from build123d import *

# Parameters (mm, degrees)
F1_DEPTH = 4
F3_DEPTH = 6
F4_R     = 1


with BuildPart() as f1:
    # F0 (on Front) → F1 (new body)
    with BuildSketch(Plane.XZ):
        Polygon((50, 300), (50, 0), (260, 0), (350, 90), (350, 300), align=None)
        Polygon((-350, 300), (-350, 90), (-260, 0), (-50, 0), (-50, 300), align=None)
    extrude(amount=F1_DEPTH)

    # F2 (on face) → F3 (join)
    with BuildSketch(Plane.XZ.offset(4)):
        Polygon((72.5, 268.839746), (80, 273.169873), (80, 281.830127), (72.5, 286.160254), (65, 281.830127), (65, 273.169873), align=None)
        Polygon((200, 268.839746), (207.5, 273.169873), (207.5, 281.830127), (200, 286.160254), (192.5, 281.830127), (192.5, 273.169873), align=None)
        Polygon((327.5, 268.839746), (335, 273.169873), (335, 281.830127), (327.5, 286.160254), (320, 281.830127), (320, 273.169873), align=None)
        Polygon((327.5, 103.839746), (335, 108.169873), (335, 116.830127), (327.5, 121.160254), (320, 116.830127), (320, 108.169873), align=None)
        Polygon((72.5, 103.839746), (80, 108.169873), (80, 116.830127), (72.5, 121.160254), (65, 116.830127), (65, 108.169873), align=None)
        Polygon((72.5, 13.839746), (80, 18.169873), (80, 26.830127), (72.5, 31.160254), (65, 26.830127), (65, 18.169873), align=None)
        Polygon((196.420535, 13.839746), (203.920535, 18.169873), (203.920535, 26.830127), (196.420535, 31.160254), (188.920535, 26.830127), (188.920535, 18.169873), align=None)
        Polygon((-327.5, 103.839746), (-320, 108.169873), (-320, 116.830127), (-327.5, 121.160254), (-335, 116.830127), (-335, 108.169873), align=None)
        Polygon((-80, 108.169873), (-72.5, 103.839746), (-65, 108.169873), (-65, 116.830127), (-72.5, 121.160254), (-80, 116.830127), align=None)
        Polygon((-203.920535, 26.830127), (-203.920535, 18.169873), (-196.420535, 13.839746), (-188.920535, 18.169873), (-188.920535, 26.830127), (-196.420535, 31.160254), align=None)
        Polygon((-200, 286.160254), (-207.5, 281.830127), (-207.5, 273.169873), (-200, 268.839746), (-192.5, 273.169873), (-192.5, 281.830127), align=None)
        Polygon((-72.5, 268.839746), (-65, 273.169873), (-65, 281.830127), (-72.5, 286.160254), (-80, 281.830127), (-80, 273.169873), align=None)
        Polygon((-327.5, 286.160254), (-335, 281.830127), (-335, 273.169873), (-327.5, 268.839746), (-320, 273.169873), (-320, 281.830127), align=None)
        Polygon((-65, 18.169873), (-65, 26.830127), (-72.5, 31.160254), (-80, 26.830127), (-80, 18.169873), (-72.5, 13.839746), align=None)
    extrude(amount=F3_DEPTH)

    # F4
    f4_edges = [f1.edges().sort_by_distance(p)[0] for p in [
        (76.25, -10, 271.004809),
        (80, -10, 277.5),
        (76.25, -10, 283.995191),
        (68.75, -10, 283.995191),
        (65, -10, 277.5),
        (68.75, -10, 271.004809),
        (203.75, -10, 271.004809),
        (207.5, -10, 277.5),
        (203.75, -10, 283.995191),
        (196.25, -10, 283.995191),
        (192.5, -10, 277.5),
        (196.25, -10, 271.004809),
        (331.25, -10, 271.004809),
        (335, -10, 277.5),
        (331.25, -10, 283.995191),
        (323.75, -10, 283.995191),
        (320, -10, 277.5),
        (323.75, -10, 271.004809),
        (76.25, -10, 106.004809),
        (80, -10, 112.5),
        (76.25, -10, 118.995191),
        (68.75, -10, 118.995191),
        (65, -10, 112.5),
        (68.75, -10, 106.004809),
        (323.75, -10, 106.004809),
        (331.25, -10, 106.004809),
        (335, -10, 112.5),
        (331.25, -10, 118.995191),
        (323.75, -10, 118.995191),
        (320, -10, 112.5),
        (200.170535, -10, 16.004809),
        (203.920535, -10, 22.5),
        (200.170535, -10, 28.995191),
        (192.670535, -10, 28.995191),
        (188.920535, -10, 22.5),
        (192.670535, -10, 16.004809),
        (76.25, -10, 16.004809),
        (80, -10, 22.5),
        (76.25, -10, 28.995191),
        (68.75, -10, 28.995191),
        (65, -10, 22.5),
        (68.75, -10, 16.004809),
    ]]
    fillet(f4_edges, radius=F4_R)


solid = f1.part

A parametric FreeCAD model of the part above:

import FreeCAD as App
import Part
import Sketcher
Q = App.Units.Quantity


def edges_at(feature, points):
    """Names of the edges that pass closest to the given points."""
    edges = feature.Shape.Edges
    near = lambda p: min(range(len(edges)), key=lambda i: edges[i].distToShape(Part.Vertex(*p))[0])
    return sorted({f"Edge{near(p) + 1}" for p in points})

doc = App.newDocument("Part")
body = doc.addObject("PartDesign::Body", "Body")
body.AllowCompound = True

# Sketch on XZ plane
sketch1 = body.newObject("Sketcher::SketchObject", "Sketch")
sketch1.AttachmentSupport = (doc.getObject("XZ_Plane"), [""])
sketch1.MapMode = "FlatFace"
sketch1.addGeometry([
    Part.LineSegment(App.Vector(50, 300, 0), App.Vector(50, 0, 0)),  # 0
    Part.LineSegment(App.Vector(50, 0, 0), App.Vector(260, 0, 0)),  # 1
    Part.LineSegment(App.Vector(260, 0, 0), App.Vector(350, 90, 0)),  # 2
    Part.LineSegment(App.Vector(350, 90, 0), App.Vector(350, 300, 0)),  # 3
    Part.LineSegment(App.Vector(350, 300, 0), App.Vector(50, 300, 0)),  # 4
    Part.LineSegment(App.Vector(-350, 300, 0), App.Vector(-350, 90, 0)),  # 5
    Part.LineSegment(App.Vector(-350, 90, 0), App.Vector(-260, 0, 0)),  # 6
    Part.LineSegment(App.Vector(-260, 0, 0), App.Vector(-50, 0, 0)),  # 7
    Part.LineSegment(App.Vector(-50, 0, 0), App.Vector(-50, 300, 0)),  # 8
    Part.LineSegment(App.Vector(-50, 300, 0), App.Vector(-350, 300, 0)),  # 9
], False)
sketch1.addConstraint([
    Sketcher.Constraint("Coincident", 0, 2, 1, 1),
    Sketcher.Constraint("Coincident", 1, 2, 2, 1),
    Sketcher.Constraint("Coincident", 2, 2, 3, 1),
    Sketcher.Constraint("Coincident", 3, 2, 4, 1),
    Sketcher.Constraint("Coincident", 4, 2, 0, 1),
    Sketcher.Constraint("Coincident", 5, 2, 6, 1),
    Sketcher.Constraint("Coincident", 6, 2, 7, 1),
    Sketcher.Constraint("Coincident", 7, 2, 8, 1),
    Sketcher.Constraint("Coincident", 8, 2, 9, 1),
    Sketcher.Constraint("Coincident", 9, 2, 5, 1),
    Sketcher.Constraint("Vertical", 0),
    Sketcher.Constraint("Horizontal", 1),
    Sketcher.Constraint("Vertical", 3),
    Sketcher.Constraint("Horizontal", 4),
    Sketcher.Constraint("Vertical", 5),
    Sketcher.Constraint("Horizontal", 7),
    Sketcher.Constraint("Vertical", 8),
    Sketcher.Constraint("Horizontal", 9),
    Sketcher.Constraint("Symmetric", 1, 2, 6, 2, -1, 1),
    Sketcher.Constraint("Symmetric", 2, 2, 5, 2, -2),
    Sketcher.Constraint("Symmetric", 0, 2, 7, 2, -2),
    Sketcher.Constraint("Perpendicular", 2, 6),
    Sketcher.Constraint("Horizontal", 4, 2, 8, 2),
    Sketcher.Constraint("Equal", 9, 0),
    Sketcher.Constraint("DistanceX", 1, 1, 1, 2, 210.0),
    Sketcher.Constraint("DistanceX", 4, 2, 4, 1, 300.0),
    Sketcher.Constraint("DistanceX", -1, 1, 0, 2, 50.0),
])
pad1 = body.newObject("PartDesign::Pad", "Pad")
pad1.Profile = sketch1
pad1.Length = 4

# Sketch on XZ plane
sketch2 = body.newObject("Sketcher::SketchObject", "Sketch001")
sketch2.AttachmentSupport = (doc.getObject("XZ_Plane"), [""])
sketch2.MapMode = "FlatFace"
sketch2.AttachmentOffset = App.Placement(App.Vector(0, 0, 4), App.Rotation())
sketch2.addGeometry([
    Part.LineSegment(App.Vector(72, 269, 0), App.Vector(80, 273, 0)),  # 0
    Part.LineSegment(App.Vector(80, 273, 0), App.Vector(80, 282, 0)),  # 1
    Part.LineSegment(App.Vector(80, 282, 0), App.Vector(72, 286, 0)),  # 2
    Part.LineSegment(App.Vector(72, 286, 0), App.Vector(65, 282, 0)),  # 3
    Part.LineSegment(App.Vector(65, 282, 0), App.Vector(65, 273, 0)),  # 4
    Part.LineSegment(App.Vector(65, 273, 0), App.Vector(72, 269, 0)),  # 5
    Part.LineSegment(App.Vector(200, 269, 0), App.Vector(208, 273, 0)),  # 6
    Part.LineSegment(App.Vector(208, 273, 0), App.Vector(208, 282, 0)),  # 7
    Part.LineSegment(App.Vector(208, 282, 0), App.Vector(200, 286, 0)),  # 8
    Part.LineSegment(App.Vector(200, 286, 0), App.Vector(192, 282, 0)),  # 9
    Part.LineSegment(App.Vector(192, 282, 0), App.Vector(192, 273, 0)),  # 10
    Part.LineSegment(App.Vector(192, 273, 0), App.Vector(200, 269, 0)),  # 11
    Part.LineSegment(App.Vector(328, 269, 0), App.Vector(335, 273, 0)),  # 12
    Part.LineSegment(App.Vector(335, 273, 0), App.Vector(335, 282, 0)),  # 13
    Part.LineSegment(App.Vector(335, 282, 0), App.Vector(328, 286, 0)),  # 14
    Part.LineSegment(App.Vector(328, 286, 0), App.Vector(320, 282, 0)),  # 15
    Part.LineSegment(App.Vector(320, 282, 0), App.Vector(320, 273, 0)),  # 16
    Part.LineSegment(App.Vector(320, 273, 0), App.Vector(328, 269, 0)),  # 17
    Part.LineSegment(App.Vector(328, 104, 0), App.Vector(335, 108, 0)),  # 18
    Part.LineSegment(App.Vector(335, 108, 0), App.Vector(335, 117, 0)),  # 19
    Part.LineSegment(App.Vector(335, 117, 0), App.Vector(328, 121, 0)),  # 20
    Part.LineSegment(App.Vector(328, 121, 0), App.Vector(320, 117, 0)),  # 21
    Part.LineSegment(App.Vector(320, 117, 0), App.Vector(320, 108, 0)),  # 22
    Part.LineSegment(App.Vector(320, 108, 0), App.Vector(328, 104, 0)),  # 23
    Part.LineSegment(App.Vector(72, 104, 0), App.Vector(80, 108, 0)),  # 24
    Part.LineSegment(App.Vector(80, 108, 0), App.Vector(80, 117, 0)),  # 25
    Part.LineSegment(App.Vector(80, 117, 0), App.Vector(72, 121, 0)),  # 26
    Part.LineSegment(App.Vector(72, 121, 0), App.Vector(65, 117, 0)),  # 27
    Part.LineSegment(App.Vector(65, 117, 0), App.Vector(65, 108, 0)),  # 28
    Part.LineSegment(App.Vector(65, 108, 0), App.Vector(72, 104, 0)),  # 29
    Part.LineSegment(App.Vector(72, 14, 0), App.Vector(80, 18, 0)),  # 30
    Part.LineSegment(App.Vector(80, 18, 0), App.Vector(80, 27, 0)),  # 31
    Part.LineSegment(App.Vector(80, 27, 0), App.Vector(72, 31, 0)),  # 32
    Part.LineSegment(App.Vector(72, 31, 0), App.Vector(65, 27, 0)),  # 33
    Part.LineSegment(App.Vector(65, 27, 0), App.Vector(65, 18, 0)),  # 34
    Part.LineSegment(App.Vector(65, 18, 0), App.Vector(72, 14, 0)),  # 35
    Part.LineSegment(App.Vector(196, 14, 0), App.Vector(204, 18, 0)),  # 36
    Part.LineSegment(App.Vector(204, 18, 0), App.Vector(204, 27, 0)),  # 37
    Part.LineSegment(App.Vector(204, 27, 0), App.Vector(196, 31, 0)),  # 38
    Part.LineSegment(App.Vector(196, 31, 0), App.Vector(189, 27, 0)),  # 39
    Part.LineSegment(App.Vector(189, 27, 0), App.Vector(189, 18, 0)),  # 40
    Part.LineSegment(App.Vector(189, 18, 0), App.Vector(196, 14, 0)),  # 41
    Part.LineSegment(App.Vector(-328, 104, 0), App.Vector(-320, 108, 0)),  # 42
    Part.LineSegment(App.Vector(-320, 108, 0), App.Vector(-320, 117, 0)),  # 43
    Part.LineSegment(App.Vector(-320, 117, 0), App.Vector(-328, 121, 0)),  # 44
    Part.LineSegment(App.Vector(-328, 121, 0), App.Vector(-335, 117, 0)),  # 45
    Part.LineSegment(App.Vector(-335, 117, 0), App.Vector(-335, 108, 0)),  # 46
    Part.LineSegment(App.Vector(-335, 108, 0), App.Vector(-328, 104, 0)),  # 47
    Part.LineSegment(App.Vector(-80, 108, 0), App.Vector(-72, 104, 0)),  # 48
    Part.LineSegment(App.Vector(-72, 104, 0), App.Vector(-65, 108, 0)),  # 49
    Part.LineSegment(App.Vector(-65, 108, 0), App.Vector(-65, 117, 0)),  # 50
    Part.LineSegment(App.Vector(-65, 117, 0), App.Vector(-72, 121, 0)),  # 51
    Part.LineSegment(App.Vector(-72, 121, 0), App.Vector(-80, 117, 0)),  # 52
    Part.LineSegment(App.Vector(-80, 117, 0), App.Vector(-80, 108, 0)),  # 53
    Part.LineSegment(App.Vector(-204, 27, 0), App.Vector(-204, 18, 0)),  # 54
    Part.LineSegment(App.Vector(-204, 18, 0), App.Vector(-196, 14, 0)),  # 55
    Part.LineSegment(App.Vector(-196, 14, 0), App.Vector(-189, 18, 0)),  # 56
    Part.LineSegment(App.Vector(-189, 18, 0), App.Vector(-189, 27, 0)),  # 57
    Part.LineSegment(App.Vector(-189, 27, 0), App.Vector(-196, 31, 0)),  # 58
    Part.LineSegment(App.Vector(-196, 31, 0), App.Vector(-204, 27, 0)),  # 59
    Part.LineSegment(App.Vector(-200, 286, 0), App.Vector(-208, 282, 0)),  # 60
    Part.LineSegment(App.Vector(-208, 282, 0), App.Vector(-208, 273, 0)),  # 61
    Part.LineSegment(App.Vector(-208, 273, 0), App.Vector(-200, 269, 0)),  # 62
    Part.LineSegment(App.Vector(-200, 269, 0), App.Vector(-192, 273, 0)),  # 63
    Part.LineSegment(App.Vector(-192, 273, 0), App.Vector(-192, 282, 0)),  # 64
    Part.LineSegment(App.Vector(-192, 282, 0), App.Vector(-200, 286, 0)),  # 65
    Part.LineSegment(App.Vector(-72, 269, 0), App.Vector(-65, 273, 0)),  # 66
    Part.LineSegment(App.Vector(-65, 273, 0), App.Vector(-65, 282, 0)),  # 67
    Part.LineSegment(App.Vector(-65, 282, 0), App.Vector(-72, 286, 0)),  # 68
    Part.LineSegment(App.Vector(-72, 286, 0), App.Vector(-80, 282, 0)),  # 69
    Part.LineSegment(App.Vector(-80, 282, 0), App.Vector(-80, 273, 0)),  # 70
    Part.LineSegment(App.Vector(-80, 273, 0), App.Vector(-72, 269, 0)),  # 71
    Part.LineSegment(App.Vector(-328, 286, 0), App.Vector(-335, 282, 0)),  # 72
    Part.LineSegment(App.Vector(-335, 282, 0), App.Vector(-335, 273, 0)),  # 73
    Part.LineSegment(App.Vector(-335, 273, 0), App.Vector(-328, 269, 0)),  # 74
    Part.LineSegment(App.Vector(-328, 269, 0), App.Vector(-320, 273, 0)),  # 75
    Part.LineSegment(App.Vector(-320, 273, 0), App.Vector(-320, 282, 0)),  # 76
    Part.LineSegment(App.Vector(-320, 282, 0), App.Vector(-328, 286, 0)),  # 77
    Part.LineSegment(App.Vector(-65, 18, 0), App.Vector(-65, 27, 0)),  # 78
    Part.LineSegment(App.Vector(-65, 27, 0), App.Vector(-72, 31, 0)),  # 79
    Part.LineSegment(App.Vector(-72, 31, 0), App.Vector(-80, 27, 0)),  # 80
    Part.LineSegment(App.Vector(-80, 27, 0), App.Vector(-80, 18, 0)),  # 81
    Part.LineSegment(App.Vector(-80, 18, 0), App.Vector(-72, 14, 0)),  # 82
    Part.LineSegment(App.Vector(-72, 14, 0), App.Vector(-65, 18, 0)),  # 83
], False)
sketch2.addConstraint([
    Sketcher.Constraint("Coincident", 0, 2, 1, 1),
    Sketcher.Constraint("Coincident", 1, 2, 2, 1),
    Sketcher.Constraint("Coincident", 2, 2, 3, 1),
    Sketcher.Constraint("Coincident", 3, 2, 4, 1),
    Sketcher.Constraint("Coincident", 4, 2, 5, 1),
    Sketcher.Constraint("Coincident", 5, 2, 0, 1),
    Sketcher.Constraint("Coincident", 6, 2, 7, 1),
    Sketcher.Constraint("Coincident", 7, 2, 8, 1),
    Sketcher.Constraint("Coincident", 8, 2, 9, 1),
    Sketcher.Constraint("Coincident", 9, 2, 10, 1),
    Sketcher.Constraint("Coincident", 10, 2, 11, 1),
    Sketcher.Constraint("Coincident", 11, 2, 6, 1),
    Sketcher.Constraint("Coincident", 12, 2, 13, 1),
    Sketcher.Constraint("Coincident", 13, 2, 14, 1),
    Sketcher.Constraint("Coincident", 14, 2, 15, 1),
    Sketcher.Constraint("Coincident", 15, 2, 16, 1),
    Sketcher.Constraint("Coincident", 16, 2, 17, 1),
    Sketcher.Constraint("Coincident", 17, 2, 12, 1),
    Sketcher.Constraint("Coincident", 18, 2, 19, 1),
    Sketcher.Constraint("Coincident", 19, 2, 20, 1),
    Sketcher.Constraint("Coincident", 20, 2, 21, 1),
    Sketcher.Constraint("Coincident", 21, 2, 22, 1),
    Sketcher.Constraint("Coincident", 22, 2, 23, 1),
    Sketcher.Constraint("Coincident", 23, 2, 18, 1),
    Sketcher.Constraint("Coincident", 24, 2, 25, 1),
    Sketcher.Constraint("Coincident", 25, 2, 26, 1),
    Sketcher.Constraint("Coincident", 26, 2, 27, 1),
    Sketcher.Constraint("Coincident", 27, 2, 28, 1),
    Sketcher.Constraint("Coincident", 28, 2, 29, 1),
    Sketcher.Constraint("Coincident", 29, 2, 24, 1),
    Sketcher.Constraint("Coincident", 30, 2, 31, 1),
    Sketcher.Constraint("Coincident", 31, 2, 32, 1),
    Sketcher.Constraint("Coincident", 32, 2, 33, 1),
    Sketcher.Constraint("Coincident", 33, 2, 34, 1),
    Sketcher.Constraint("Coincident", 34, 2, 35, 1),
    Sketcher.Constraint("Coincident", 35, 2, 30, 1),
    Sketcher.Constraint("Coincident", 36, 2, 37, 1),
    Sketcher.Constraint("Coincident", 37, 2, 38, 1),
    Sketcher.Constraint("Coincident", 38, 2, 39, 1),
    Sketcher.Constraint("Coincident", 39, 2, 40, 1),
    Sketcher.Constraint("Coincident", 40, 2, 41, 1),
    Sketcher.Constraint("Coincident", 41, 2, 36, 1),
    Sketcher.Constraint("Coincident", 42, 2, 43, 1),
    Sketcher.Constraint("Coincident", 43, 2, 44, 1),
    Sketcher.Constraint("Coincident", 44, 2, 45, 1),
    Sketcher.Constraint("Coincident", 45, 2, 46, 1),
    Sketcher.Constraint("Coincident", 46, 2, 47, 1),
    Sketcher.Constraint("Coincident", 47, 2, 42, 1),
    Sketcher.Constraint("Coincident", 48, 2, 49, 1),
    Sketcher.Constraint("Coincident", 49, 2, 50, 1),
    Sketcher.Constraint("Coincident", 50, 2, 51, 1),
    Sketcher.Constraint("Coincident", 51, 2, 52, 1),
    Sketcher.Constraint("Coincident", 52, 2, 53, 1),
    Sketcher.Constraint("Coincident", 53, 2, 48, 1),
    Sketcher.Constraint("Coincident", 54, 2, 55, 1),
    Sketcher.Constraint("Coincident", 55, 2, 56, 1),
    Sketcher.Constraint("Coincident", 56, 2, 57, 1),
    Sketcher.Constraint("Coincident", 57, 2, 58, 1),
    Sketcher.Constraint("Coincident", 58, 2, 59, 1),
    Sketcher.Constraint("Coincident", 59, 2, 54, 1),
    Sketcher.Constraint("Coincident", 60, 2, 61, 1),
    Sketcher.Constraint("Coincident", 61, 2, 62, 1),
    Sketcher.Constraint("Coincident", 62, 2, 63, 1),
    Sketcher.Constraint("Coincident", 63, 2, 64, 1),
    Sketcher.Constraint("Coincident", 64, 2, 65, 1),
    Sketcher.Constraint("Coincident", 65, 2, 60, 1),
    Sketcher.Constraint("Coincident", 66, 2, 67, 1),
    Sketcher.Constraint("Coincident", 67, 2, 68, 1),
    Sketcher.Constraint("Coincident", 68, 2, 69, 1),
    Sketcher.Constraint("Coincident", 69, 2, 70, 1),
    Sketcher.Constraint("Coincident", 70, 2, 71, 1),
    Sketcher.Constraint("Coincident", 71, 2, 66, 1),
    Sketcher.Constraint("Coincident", 72, 2, 73, 1),
    Sketcher.Constraint("Coincident", 73, 2, 74, 1),
    Sketcher.Constraint("Coincident", 74, 2, 75, 1),
    Sketcher.Constraint("Coincident", 75, 2, 76, 1),
    Sketcher.Constraint("Coincident", 76, 2, 77, 1),
    Sketcher.Constraint("Coincident", 77, 2, 72, 1),
    Sketcher.Constraint("Coincident", 78, 2, 79, 1),
    Sketcher.Constraint("Coincident", 79, 2, 80, 1),
    Sketcher.Constraint("Coincident", 80, 2, 81, 1),
    Sketcher.Constraint("Coincident", 81, 2, 82, 1),
    Sketcher.Constraint("Coincident", 82, 2, 83, 1),
    Sketcher.Constraint("Coincident", 83, 2, 78, 1),
    Sketcher.Constraint("Vertical", 1),
    Sketcher.Constraint("Vertical", 4),
    Sketcher.Constraint("Vertical", 7),
    Sketcher.Constraint("Vertical", 10),
    Sketcher.Constraint("Vertical", 13),
    Sketcher.Constraint("Vertical", 16),
    Sketcher.Constraint("Vertical", 19),
    Sketcher.Constraint("Vertical", 22),
    Sketcher.Constraint("Vertical", 25),
    Sketcher.Constraint("Vertical", 28),
    Sketcher.Constraint("Vertical", 31),
    Sketcher.Constraint("Vertical", 34),
    Sketcher.Constraint("Vertical", 37),
    Sketcher.Constraint("Vertical", 40),
    Sketcher.Constraint("Vertical", 43),
    Sketcher.Constraint("Vertical", 46),
    Sketcher.Constraint("Vertical", 50),
    Sketcher.Constraint("Vertical", 53),
    Sketcher.Constraint("Vertical", 54),
    Sketcher.Constraint("Vertical", 57),
    Sketcher.Constraint("Vertical", 61),
    Sketcher.Constraint("Vertical", 64),
    Sketcher.Constraint("Vertical", 67),
    Sketcher.Constraint("Vertical", 70),
    Sketcher.Constraint("Vertical", 73),
    Sketcher.Constraint("Vertical", 76),
    Sketcher.Constraint("Vertical", 78),
    Sketcher.Constraint("Vertical", 81),
    Sketcher.Constraint("Symmetric", 22, 2, 42, 2, -2),
    Sketcher.Constraint("Symmetric", 20, 2, 44, 2, -2),
    Sketcher.Constraint("Symmetric", 19, 2, 45, 2, -2),
    Sketcher.Constraint("Symmetric", 23, 2, 47, 2, -2),
    Sketcher.Constraint("Symmetric", 29, 2, 48, 2, -2),
    Sketcher.Constraint("Symmetric", 28, 2, 49, 2, -2),
    Sketcher.Constraint("Symmetric", 26, 2, 51, 2, -2),
    Sketcher.Constraint("Symmetric", 25, 2, 52, 2, -2),
    Sketcher.Constraint("Symmetric", 36, 2, 54, 2, -2),
    Sketcher.Constraint("Symmetric", 41, 2, 55, 2, -2),
    Sketcher.Constraint("Symmetric", 40, 2, 56, 2, -2),
    Sketcher.Constraint("Symmetric", 38, 2, 58, 2, -2),
    Sketcher.Constraint("Symmetric", 7, 2, 60, 2, -2),
    Sketcher.Constraint("Symmetric", 11, 2, 62, 2, -2),
    Sketcher.Constraint("Symmetric", 10, 2, 63, 2, -2),
    Sketcher.Constraint("Symmetric", 8, 2, 65, 2, -2),
    Sketcher.Constraint("Symmetric", 4, 2, 66, 2, -2),
    Sketcher.Constraint("Symmetric", 2, 2, 68, 2, -2),
    Sketcher.Constraint("Symmetric", 1, 2, 69, 2, -2),
    Sketcher.Constraint("Symmetric", 5, 2, 71, 2, -2),
    Sketcher.Constraint("Symmetric", 13, 2, 72, 2, -2),
    Sketcher.Constraint("Symmetric", 17, 2, 74, 2, -2),
    Sketcher.Constraint("Symmetric", 16, 2, 75, 2, -2),
    Sketcher.Constraint("Symmetric", 14, 2, 77, 2, -2),
    Sketcher.Constraint("Symmetric", 33, 2, 78, 2, -2),
    Sketcher.Constraint("Symmetric", 32, 2, 79, 2, -2),
    Sketcher.Constraint("Symmetric", 31, 2, 80, 2, -2),
    Sketcher.Constraint("Symmetric", 35, 2, 82, 2, -2),
    Sketcher.Constraint("Parallel", 0, 3),
    Sketcher.Constraint("Parallel", 2, 5),
    Sketcher.Constraint("Parallel", 3, 6),
    Sketcher.Constraint("Parallel", 5, 8),
    Sketcher.Constraint("Parallel", 6, 9),
    Sketcher.Constraint("Parallel", 8, 11),
    Sketcher.Constraint("Parallel", 9, 12),
    Sketcher.Constraint("Parallel", 11, 14),
    Sketcher.Constraint("Parallel", 12, 15),
    Sketcher.Constraint("Parallel", 14, 17),
    Sketcher.Constraint("Parallel", 15, 18),
    Sketcher.Constraint("Parallel", 17, 20),
    Sketcher.Constraint("Parallel", 18, 21),
    Sketcher.Constraint("Parallel", 20, 23),
    Sketcher.Constraint("Parallel", 21, 24),
    Sketcher.Constraint("Parallel", 23, 26),
    Sketcher.Constraint("Parallel", 24, 27),
    Sketcher.Constraint("Parallel", 26, 29),
    Sketcher.Constraint("Parallel", 27, 30),
    Sketcher.Constraint("Parallel", 29, 32),
    Sketcher.Constraint("Parallel", 30, 33),
    Sketcher.Constraint("Parallel", 32, 35),
    Sketcher.Constraint("Parallel", 33, 36),
    Sketcher.Constraint("Parallel", 35, 38),
    Sketcher.Constraint("Parallel", 36, 39),
    Sketcher.Constraint("Parallel", 38, 41),
    Sketcher.Constraint("Parallel", 39, 42),
    Sketcher.Constraint("Parallel", 41, 44),
    Sketcher.Constraint("Parallel", 44, 47),
    Sketcher.Constraint("Parallel", 47, 48),
    Sketcher.Constraint("Parallel", 48, 51),
    Sketcher.Constraint("Parallel", 55, 58),
    Sketcher.Constraint("Parallel", 56, 59),
    Sketcher.Constraint("Parallel", 58, 62),
    Sketcher.Constraint("Parallel", 62, 65),
    Sketcher.Constraint("Parallel", 65, 68),
    Sketcher.Constraint("Parallel", 68, 71),
    Sketcher.Constraint("Parallel", 71, 74),
    Sketcher.Constraint("Parallel", 74, 77),
    Sketcher.Constraint("Parallel", 79, 82),
    Sketcher.Constraint("Parallel", 80, 83),
    Sketcher.Constraint("Horizontal", 1, 2, 3, 2),
    Sketcher.Constraint("Horizontal", 0, 2, 4, 2),
    Sketcher.Constraint("Horizontal", 4, 2, 6, 2),
    Sketcher.Constraint("Horizontal", 3, 2, 7, 2),
    Sketcher.Constraint("Horizontal", 2, 2, 8, 2),
    Sketcher.Constraint("Horizontal", 7, 2, 9, 2),
    Sketcher.Constraint("Horizontal", 6, 2, 10, 2),
    Sketcher.Constraint("Horizontal", 10, 2, 12, 2),
    Sketcher.Constraint("Horizontal", 9, 2, 13, 2),
    Sketcher.Constraint("Horizontal", 8, 2, 14, 2),
    Sketcher.Constraint("Horizontal", 13, 2, 15, 2),
    Sketcher.Constraint("Horizontal", 12, 2, 16, 2),
    Sketcher.Constraint("Horizontal", 19, 2, 21, 2),
    Sketcher.Constraint("Horizontal", 18, 2, 22, 2),
    Sketcher.Constraint("Horizontal", 22, 2, 24, 2),
    Sketcher.Constraint("Horizontal", 21, 2, 25, 2),
    Sketcher.Constraint("Horizontal", 20, 2, 26, 2),
    Sketcher.Constraint("Horizontal", 25, 2, 27, 2),
    Sketcher.Constraint("Horizontal", 24, 2, 28, 2),
    Sketcher.Constraint("Horizontal", 31, 2, 33, 2),
    Sketcher.Constraint("Horizontal", 30, 2, 34, 2),
    Sketcher.Constraint("Horizontal", 34, 2, 36, 2),
    Sketcher.Constraint("Horizontal", 33, 2, 37, 2),
    Sketcher.Constraint("Horizontal", 32, 2, 38, 2),
    Sketcher.Constraint("Horizontal", 37, 2, 39, 2),
    Sketcher.Constraint("Horizontal", 36, 2, 40, 2),
    Sketcher.Constraint("Vertical", 13, 2, 18, 2),
    Sketcher.Constraint("Vertical", 17, 2, 20, 2),
    Sketcher.Constraint("Vertical", 1, 2, 24, 2),
    Sketcher.Constraint("Vertical", 25, 2, 30, 2),
    Sketcher.Constraint("Vertical", 29, 2, 32, 2),
    Sketcher.Constraint("Equal", 16, 19),
    Sketcher.Constraint("Equal", 28, 31),
    Sketcher.Constraint("Angle", 0, Q("30 deg")),
    Sketcher.Constraint("DistanceX", -1, 1, 0, 2, 80.0),
    Sketcher.Constraint("DistanceX", -1, 1, 3, 2, 65.0),
    Sketcher.Constraint("DistanceX", -1, 1, 8, 2, 200.0),
    Sketcher.Constraint("DistanceX", -1, 1, 12, 2, 335.0),
    Sketcher.Constraint("DistanceY", 1, 1, 1, 2, 8.660254),
    Sketcher.Constraint("DistanceY", -1, 1, 0, 2, 273.169873),
    Sketcher.Constraint("DistanceY", -1, 1, 18, 2, 108.169873),
    Sketcher.Constraint("DistanceY", -1, 1, 30, 2, 18.169873),
    Sketcher.Constraint("DistanceX", -1, 1, 36, 2, 203.920535),
])
pad2 = body.newObject("PartDesign::Pad", "Pad001")
pad2.Profile = sketch2
pad2.Length = 6
doc.recompute()

fillet = body.newObject("PartDesign::Fillet", "Fillet")
fillet.Base = (pad2, edges_at(pad2, [
    (76.25, -10, 271.005),
    (80, -10, 277.5),
    (76.25, -10, 283.995),
    (68.75, -10, 283.995),
    (65, -10, 277.5),
    (68.75, -10, 271.005),
    (203.75, -10, 271.005),
    (207.5, -10, 277.5),
    (203.75, -10, 283.995),
    (196.25, -10, 283.995),
    (192.5, -10, 277.5),
    (196.25, -10, 271.005),
    (331.25, -10, 271.005),
    (335, -10, 277.5),
    (331.25, -10, 283.995),
    (323.75, -10, 283.995),
    (320, -10, 277.5),
    (323.75, -10, 271.005),
    (76.25, -10, 106.005),
    (80, -10, 112.5),
    (76.25, -10, 118.995),
    (68.75, -10, 118.995),
    (65, -10, 112.5),
    (68.75, -10, 106.005),
    (323.75, -10, 106.005),
    (331.25, -10, 106.005),
    (335, -10, 112.5),
    (331.25, -10, 118.995),
    (323.75, -10, 118.995),
    (320, -10, 112.5),
    (200.171, -10, 16.005),
    (203.921, -10, 22.5),
    (200.171, -10, 28.995),
    (192.671, -10, 28.995),
    (188.921, -10, 22.5),
    (192.671, -10, 16.005),
    (76.25, -10, 16.005),
    (80, -10, 22.5),
    (76.25, -10, 28.995),
    (68.75, -10, 28.995),
    (65, -10, 22.5),
    (68.75, -10, 16.005),
]))
fillet.Radius = 1

doc.recompute()
